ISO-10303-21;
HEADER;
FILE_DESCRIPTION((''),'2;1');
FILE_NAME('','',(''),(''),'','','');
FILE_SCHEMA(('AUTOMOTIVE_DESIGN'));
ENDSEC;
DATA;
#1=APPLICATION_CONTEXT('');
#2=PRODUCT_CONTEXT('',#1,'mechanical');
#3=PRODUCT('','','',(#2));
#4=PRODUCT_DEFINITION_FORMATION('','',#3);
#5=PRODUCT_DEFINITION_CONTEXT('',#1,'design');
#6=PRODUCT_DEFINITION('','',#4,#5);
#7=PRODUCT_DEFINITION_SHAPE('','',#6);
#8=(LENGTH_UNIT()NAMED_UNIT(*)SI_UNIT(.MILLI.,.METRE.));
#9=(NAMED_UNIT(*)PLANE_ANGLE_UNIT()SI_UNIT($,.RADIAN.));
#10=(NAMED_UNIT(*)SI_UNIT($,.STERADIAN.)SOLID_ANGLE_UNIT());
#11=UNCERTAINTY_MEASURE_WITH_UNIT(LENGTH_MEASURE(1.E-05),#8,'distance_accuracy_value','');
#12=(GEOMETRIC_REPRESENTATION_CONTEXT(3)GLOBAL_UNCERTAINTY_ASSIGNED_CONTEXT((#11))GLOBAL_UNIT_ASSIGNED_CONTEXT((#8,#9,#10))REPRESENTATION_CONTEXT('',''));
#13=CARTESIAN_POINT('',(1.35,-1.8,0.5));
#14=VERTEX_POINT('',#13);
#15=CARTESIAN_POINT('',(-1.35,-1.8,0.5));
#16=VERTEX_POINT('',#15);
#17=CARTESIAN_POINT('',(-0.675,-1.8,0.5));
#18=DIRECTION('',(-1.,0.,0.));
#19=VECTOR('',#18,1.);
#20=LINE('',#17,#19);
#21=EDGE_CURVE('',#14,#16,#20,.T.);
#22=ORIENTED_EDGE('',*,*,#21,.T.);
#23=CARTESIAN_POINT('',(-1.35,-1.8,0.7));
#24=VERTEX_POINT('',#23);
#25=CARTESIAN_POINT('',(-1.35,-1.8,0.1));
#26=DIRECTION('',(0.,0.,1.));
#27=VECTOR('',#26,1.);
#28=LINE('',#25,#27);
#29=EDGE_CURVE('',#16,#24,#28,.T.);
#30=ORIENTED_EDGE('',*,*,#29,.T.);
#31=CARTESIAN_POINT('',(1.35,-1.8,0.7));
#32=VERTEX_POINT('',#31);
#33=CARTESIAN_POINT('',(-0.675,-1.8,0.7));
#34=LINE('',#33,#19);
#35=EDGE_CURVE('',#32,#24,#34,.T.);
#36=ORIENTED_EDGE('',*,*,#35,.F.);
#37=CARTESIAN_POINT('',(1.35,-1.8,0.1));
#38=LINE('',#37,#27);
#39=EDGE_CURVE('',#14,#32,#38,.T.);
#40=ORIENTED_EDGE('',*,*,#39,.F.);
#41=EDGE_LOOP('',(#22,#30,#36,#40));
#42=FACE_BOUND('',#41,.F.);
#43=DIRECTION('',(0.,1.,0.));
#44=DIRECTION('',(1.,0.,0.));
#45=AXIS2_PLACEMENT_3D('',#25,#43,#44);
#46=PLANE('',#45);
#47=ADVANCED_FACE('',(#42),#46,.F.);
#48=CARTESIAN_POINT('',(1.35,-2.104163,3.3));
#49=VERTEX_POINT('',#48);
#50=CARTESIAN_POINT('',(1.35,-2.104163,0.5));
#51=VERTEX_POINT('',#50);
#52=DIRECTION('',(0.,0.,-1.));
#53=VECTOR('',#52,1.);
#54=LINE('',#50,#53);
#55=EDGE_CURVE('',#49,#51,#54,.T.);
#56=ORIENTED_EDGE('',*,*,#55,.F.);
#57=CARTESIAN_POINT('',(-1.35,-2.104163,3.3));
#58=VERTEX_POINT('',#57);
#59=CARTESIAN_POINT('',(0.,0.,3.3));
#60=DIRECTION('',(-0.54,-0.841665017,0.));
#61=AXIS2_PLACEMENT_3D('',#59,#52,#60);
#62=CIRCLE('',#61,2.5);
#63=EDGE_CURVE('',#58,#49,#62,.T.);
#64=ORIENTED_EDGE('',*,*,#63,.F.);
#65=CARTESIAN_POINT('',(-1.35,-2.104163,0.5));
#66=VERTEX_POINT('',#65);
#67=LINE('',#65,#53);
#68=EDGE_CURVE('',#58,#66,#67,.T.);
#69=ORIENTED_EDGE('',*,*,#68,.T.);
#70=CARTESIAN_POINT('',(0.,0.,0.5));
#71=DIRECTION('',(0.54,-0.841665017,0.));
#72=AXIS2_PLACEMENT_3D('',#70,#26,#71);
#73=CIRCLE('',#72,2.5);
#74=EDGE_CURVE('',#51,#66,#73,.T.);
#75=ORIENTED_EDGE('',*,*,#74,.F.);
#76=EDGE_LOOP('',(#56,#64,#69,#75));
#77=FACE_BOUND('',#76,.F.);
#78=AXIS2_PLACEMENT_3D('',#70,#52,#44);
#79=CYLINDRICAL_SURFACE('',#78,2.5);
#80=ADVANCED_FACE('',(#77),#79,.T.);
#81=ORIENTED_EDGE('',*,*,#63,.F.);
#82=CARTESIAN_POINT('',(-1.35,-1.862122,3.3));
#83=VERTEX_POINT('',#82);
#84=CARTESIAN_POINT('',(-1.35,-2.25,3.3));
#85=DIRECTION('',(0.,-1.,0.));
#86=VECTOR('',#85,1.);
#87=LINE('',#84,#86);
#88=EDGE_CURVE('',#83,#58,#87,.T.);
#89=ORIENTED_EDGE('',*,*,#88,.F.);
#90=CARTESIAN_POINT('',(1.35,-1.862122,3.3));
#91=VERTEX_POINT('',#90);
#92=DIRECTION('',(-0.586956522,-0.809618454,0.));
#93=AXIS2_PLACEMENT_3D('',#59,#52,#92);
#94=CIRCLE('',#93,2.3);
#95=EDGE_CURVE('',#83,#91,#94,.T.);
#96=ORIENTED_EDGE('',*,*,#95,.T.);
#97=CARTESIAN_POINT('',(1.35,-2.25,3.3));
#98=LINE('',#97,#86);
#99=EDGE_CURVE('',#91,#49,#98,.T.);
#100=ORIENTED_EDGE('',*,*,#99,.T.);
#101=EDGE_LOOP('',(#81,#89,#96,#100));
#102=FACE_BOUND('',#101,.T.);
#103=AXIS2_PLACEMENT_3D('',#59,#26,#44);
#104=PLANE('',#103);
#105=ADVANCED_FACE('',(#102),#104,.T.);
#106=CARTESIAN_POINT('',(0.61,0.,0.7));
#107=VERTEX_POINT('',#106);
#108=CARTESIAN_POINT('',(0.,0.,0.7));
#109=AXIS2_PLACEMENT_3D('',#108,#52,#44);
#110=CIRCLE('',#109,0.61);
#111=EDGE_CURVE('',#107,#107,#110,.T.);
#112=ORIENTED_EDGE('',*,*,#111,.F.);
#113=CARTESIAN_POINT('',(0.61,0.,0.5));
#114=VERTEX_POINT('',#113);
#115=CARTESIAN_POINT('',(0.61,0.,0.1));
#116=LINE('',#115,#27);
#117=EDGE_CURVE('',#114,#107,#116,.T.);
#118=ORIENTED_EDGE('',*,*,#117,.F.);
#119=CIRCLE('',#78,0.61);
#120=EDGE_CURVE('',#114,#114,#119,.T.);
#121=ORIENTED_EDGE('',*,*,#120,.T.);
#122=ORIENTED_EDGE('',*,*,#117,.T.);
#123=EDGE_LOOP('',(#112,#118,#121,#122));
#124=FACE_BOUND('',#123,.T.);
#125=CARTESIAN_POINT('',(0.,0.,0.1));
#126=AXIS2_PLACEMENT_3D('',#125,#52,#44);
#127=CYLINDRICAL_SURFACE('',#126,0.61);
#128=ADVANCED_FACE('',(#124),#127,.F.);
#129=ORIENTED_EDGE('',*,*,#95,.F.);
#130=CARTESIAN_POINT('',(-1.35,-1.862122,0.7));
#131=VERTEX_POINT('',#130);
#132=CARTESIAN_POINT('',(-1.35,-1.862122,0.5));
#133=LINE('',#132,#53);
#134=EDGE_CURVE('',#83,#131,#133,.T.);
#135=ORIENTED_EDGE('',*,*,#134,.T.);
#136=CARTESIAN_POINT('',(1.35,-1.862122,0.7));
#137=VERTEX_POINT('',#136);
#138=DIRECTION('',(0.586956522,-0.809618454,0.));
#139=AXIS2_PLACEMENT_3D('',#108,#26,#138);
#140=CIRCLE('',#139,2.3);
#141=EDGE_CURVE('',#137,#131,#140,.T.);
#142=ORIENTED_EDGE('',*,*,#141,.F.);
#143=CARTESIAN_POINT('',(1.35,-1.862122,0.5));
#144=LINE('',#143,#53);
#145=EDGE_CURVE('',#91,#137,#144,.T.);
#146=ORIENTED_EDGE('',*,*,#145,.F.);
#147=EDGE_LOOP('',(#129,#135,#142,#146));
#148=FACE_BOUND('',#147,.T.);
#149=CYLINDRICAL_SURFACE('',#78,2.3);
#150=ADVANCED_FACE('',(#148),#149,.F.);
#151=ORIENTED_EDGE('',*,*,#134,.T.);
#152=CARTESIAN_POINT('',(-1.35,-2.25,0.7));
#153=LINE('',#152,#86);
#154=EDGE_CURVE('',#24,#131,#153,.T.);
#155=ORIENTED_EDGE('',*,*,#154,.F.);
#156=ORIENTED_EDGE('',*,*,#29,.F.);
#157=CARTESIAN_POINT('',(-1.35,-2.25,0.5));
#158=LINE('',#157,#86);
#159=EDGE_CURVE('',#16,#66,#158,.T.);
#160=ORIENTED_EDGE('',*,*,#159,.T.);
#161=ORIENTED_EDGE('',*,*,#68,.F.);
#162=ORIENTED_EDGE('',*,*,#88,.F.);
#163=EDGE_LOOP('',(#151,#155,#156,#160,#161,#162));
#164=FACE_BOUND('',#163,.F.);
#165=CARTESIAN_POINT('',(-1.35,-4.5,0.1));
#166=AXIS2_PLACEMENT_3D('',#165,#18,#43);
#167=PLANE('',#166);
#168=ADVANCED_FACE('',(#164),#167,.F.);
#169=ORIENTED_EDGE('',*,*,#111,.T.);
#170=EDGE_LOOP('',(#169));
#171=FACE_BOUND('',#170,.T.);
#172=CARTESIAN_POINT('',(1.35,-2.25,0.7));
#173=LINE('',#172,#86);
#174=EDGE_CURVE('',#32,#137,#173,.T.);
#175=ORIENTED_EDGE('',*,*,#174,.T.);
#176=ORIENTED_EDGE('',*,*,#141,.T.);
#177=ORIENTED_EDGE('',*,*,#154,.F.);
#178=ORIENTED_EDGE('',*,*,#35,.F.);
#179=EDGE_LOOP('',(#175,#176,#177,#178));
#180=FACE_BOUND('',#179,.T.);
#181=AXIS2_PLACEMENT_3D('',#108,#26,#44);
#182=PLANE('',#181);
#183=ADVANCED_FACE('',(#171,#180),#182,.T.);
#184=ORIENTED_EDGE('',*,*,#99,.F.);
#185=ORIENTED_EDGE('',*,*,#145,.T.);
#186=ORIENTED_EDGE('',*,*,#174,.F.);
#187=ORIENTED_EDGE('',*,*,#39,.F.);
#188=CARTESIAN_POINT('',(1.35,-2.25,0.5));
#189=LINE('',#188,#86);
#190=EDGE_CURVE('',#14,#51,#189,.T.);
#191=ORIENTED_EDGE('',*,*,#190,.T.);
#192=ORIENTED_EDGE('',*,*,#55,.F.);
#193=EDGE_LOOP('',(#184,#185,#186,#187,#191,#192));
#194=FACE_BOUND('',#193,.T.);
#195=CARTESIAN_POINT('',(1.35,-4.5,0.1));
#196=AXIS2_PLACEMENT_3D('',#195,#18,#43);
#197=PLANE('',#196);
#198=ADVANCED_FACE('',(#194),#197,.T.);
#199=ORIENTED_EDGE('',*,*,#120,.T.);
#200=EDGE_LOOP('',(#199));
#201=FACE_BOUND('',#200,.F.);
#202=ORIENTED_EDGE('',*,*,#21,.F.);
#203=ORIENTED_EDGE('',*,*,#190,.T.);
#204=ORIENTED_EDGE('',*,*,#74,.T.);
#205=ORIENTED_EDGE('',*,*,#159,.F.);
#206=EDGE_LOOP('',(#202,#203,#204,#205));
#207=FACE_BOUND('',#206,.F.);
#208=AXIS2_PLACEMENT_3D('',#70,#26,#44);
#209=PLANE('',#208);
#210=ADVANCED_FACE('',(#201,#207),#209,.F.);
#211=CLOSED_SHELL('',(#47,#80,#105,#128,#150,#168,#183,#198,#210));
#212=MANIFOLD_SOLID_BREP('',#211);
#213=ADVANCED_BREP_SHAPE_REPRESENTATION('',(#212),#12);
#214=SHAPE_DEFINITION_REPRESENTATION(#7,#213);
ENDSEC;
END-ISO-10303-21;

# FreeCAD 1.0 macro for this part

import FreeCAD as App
import Part
import Sketcher

V = App.Vector
Q = App.Units.Quantity


def faces_at(feature, points):
    """Names of the faces that lie closest to the given points."""
    faces = feature.Shape.Faces
    near = lambda p: min(range(len(faces)), key=lambda i: faces[i].distToShape(Part.Vertex(*p))[0])
    return sorted({f"Face{near(p) + 1}" for p in points})

doc = App.newDocument("Part")
params = doc.addObject("Spreadsheet::Sheet", "Params")
for row, (alias, value) in enumerate([
    ("sketch1_width", "2.7 mm"),
    ("pad1_length", "10 mm"),
    ("sketch2_diameter", "1.22 mm"),
    ("pad2_length", "10 mm"),
    ("sketch3_diameter", "5 mm"),
    ("pad3_length", "2.8 mm"),
    ("thickness_wall", "0.2 mm"),
], start=1):
    params.set(f"A{row}", alias)
    params.set(f"B{row}", "=" + value)
    params.setAlias(f"B{row}", alias)

body = doc.addObject("PartDesign::Body", "Body")

# Sketch on XY plane
sketch1 = doc.addObject("Sketcher::SketchObject", "Sketch")
body.addObject(sketch1)
sketch1.AttachmentSupport = (doc.XY_Plane, [""])
sketch1.MapMode = "FlatFace"
sketch1.addGeometry([
    Part.LineSegment(V(-1.35, -1.8, 0), V(-1.35, -4.5, 0)),
    Part.LineSegment(V(-1.35, -4.5, 0), V(1.35, -4.5, 0)),
    Part.LineSegment(V(1.35, -4.5, 0), V(1.35, -1.8, 0)),
    Part.LineSegment(V(1.35, -1.8, 0), V(-1.35, -1.8, 0)),
], False)
sketch1.addConstraint([
    Sketcher.Constraint("Coincident", 0, 2, 1, 1),
    Sketcher.Constraint("Coincident", 1, 2, 2, 1),
    Sketcher.Constraint("Coincident", 2, 2, 3, 1),
    Sketcher.Constraint("Coincident", 3, 2, 0, 1),
    Sketcher.Constraint("Vertical", 0),
    Sketcher.Constraint("Horizontal", 1),
    Sketcher.Constraint("Vertical", 2),
    Sketcher.Constraint("Horizontal", 3),
    Sketcher.Constraint("Equal", 3, 0),
    Sketcher.Constraint("DistanceX", 1, 1, 1, 2, Q("2.7 mm")),
    Sketcher.Constraint("DistanceY", 0, 2, -1, 1, Q("4.5 mm")),
    Sketcher.Constraint("DistanceX", 0, 2, -1, 1, Q("1.35 mm")),
])
sketch1.setExpression("Constraints[9]", "Params.sketch1_width")
pad1 = doc.addObject("PartDesign::Pad", "Pad")
body.addObject(pad1)
pad1.Profile = sketch1
pad1.setExpression("Length", "Params.pad1_length")
body2 = doc.addObject("PartDesign::Body", "Body001")

# Sketch on XY plane
sketch2 = doc.addObject("Sketcher::SketchObject", "Sketch001")
body2.addObject(sketch2)
sketch2.AttachmentSupport = (doc.getObject("XY_Plane001"), [""])
sketch2.MapMode = "FlatFace"
sketch2.addGeometry(Part.Circle(V(0, 0, 0), V(0, 0, 1), 0.61), False)
sketch2.addConstraint([
    Sketcher.Constraint("Coincident", 0, 3, -1, 1),
    Sketcher.Constraint("Diameter", 0, Q("1.22 mm")),
])
sketch2.setExpression("Constraints[1]", "Params.sketch2_diameter")
pad2 = doc.addObject("PartDesign::Pad", "Pad001")
body2.addObject(pad2)
pad2.Profile = sketch2
pad2.setExpression("Length", "Params.pad2_length")
body3 = doc.addObject("PartDesign::Body", "Body002")

# Sketch on XY plane
sketch3 = doc.addObject("Sketcher::SketchObject", "Sketch002")
body3.addObject(sketch3)
sketch3.AttachmentSupport = (doc.getObject("XY_Plane002"), [""])
sketch3.MapMode = "FlatFace"
sketch3.addGeometry(Part.Circle(V(0, 0, 0), V(0, 0, 1), 2.5), False)
sketch3.addConstraint([
    Sketcher.Constraint("Coincident", 0, 3, -1, 1),
    Sketcher.Constraint("Diameter", 0, Q("5 mm")),
])
sketch3.setExpression("Constraints[1]", "Params.sketch3_diameter")
pad3 = doc.addObject("PartDesign::Pad", "Pad002")
body3.addObject(pad3)
pad3.Profile = sketch3
pad3.setExpression("Length", "Params.pad3_length")
doc.recompute()

thickness = doc.addObject("PartDesign::Thickness", "Thickness")
body3.addObject(thickness)
thickness.Base = (pad3, faces_at(pad3, [(0, 0, 2.8)]))
thickness.setExpression("Value", "Params.thickness_wall")
thickness.Reversed = True
thickness.Join = "Arc"
body4 = doc.addObject("PartDesign::Body", "Body003")
doc.recompute()

body3.Placement = App.Placement(V(0, 0, 0.4), App.Rotation(V(0, 0, 1), 0))
boolean = doc.addObject("PartDesign::Boolean", "Boolean")
body4.addObject(boolean)
boolean.Type = "Fuse"
boolean.addObjects([body3])
doc.recompute()

boolean2 = doc.addObject("PartDesign::Boolean", "Boolean001")
body4.addObject(boolean2)
boolean2.Type = "Cut"
boolean2.addObjects([body2])
doc.recompute()

boolean3 = doc.addObject("PartDesign::Boolean", "Boolean002")
body4.addObject(boolean3)
boolean3.Type = "Cut"
boolean3.addObjects([body])
body5 = doc.addObject("PartDesign::Body", "Body004")
doc.recompute()

body4.Placement = App.Placement(V(0, 0, 0.1), App.Rotation(V(0, 0, 1), 0))
boolean4 = doc.addObject("PartDesign::Boolean", "Boolean003")
body5.addObject(boolean4)
boolean4.Type = "Fuse"
boolean4.addObjects([body4])

doc.recompute()
